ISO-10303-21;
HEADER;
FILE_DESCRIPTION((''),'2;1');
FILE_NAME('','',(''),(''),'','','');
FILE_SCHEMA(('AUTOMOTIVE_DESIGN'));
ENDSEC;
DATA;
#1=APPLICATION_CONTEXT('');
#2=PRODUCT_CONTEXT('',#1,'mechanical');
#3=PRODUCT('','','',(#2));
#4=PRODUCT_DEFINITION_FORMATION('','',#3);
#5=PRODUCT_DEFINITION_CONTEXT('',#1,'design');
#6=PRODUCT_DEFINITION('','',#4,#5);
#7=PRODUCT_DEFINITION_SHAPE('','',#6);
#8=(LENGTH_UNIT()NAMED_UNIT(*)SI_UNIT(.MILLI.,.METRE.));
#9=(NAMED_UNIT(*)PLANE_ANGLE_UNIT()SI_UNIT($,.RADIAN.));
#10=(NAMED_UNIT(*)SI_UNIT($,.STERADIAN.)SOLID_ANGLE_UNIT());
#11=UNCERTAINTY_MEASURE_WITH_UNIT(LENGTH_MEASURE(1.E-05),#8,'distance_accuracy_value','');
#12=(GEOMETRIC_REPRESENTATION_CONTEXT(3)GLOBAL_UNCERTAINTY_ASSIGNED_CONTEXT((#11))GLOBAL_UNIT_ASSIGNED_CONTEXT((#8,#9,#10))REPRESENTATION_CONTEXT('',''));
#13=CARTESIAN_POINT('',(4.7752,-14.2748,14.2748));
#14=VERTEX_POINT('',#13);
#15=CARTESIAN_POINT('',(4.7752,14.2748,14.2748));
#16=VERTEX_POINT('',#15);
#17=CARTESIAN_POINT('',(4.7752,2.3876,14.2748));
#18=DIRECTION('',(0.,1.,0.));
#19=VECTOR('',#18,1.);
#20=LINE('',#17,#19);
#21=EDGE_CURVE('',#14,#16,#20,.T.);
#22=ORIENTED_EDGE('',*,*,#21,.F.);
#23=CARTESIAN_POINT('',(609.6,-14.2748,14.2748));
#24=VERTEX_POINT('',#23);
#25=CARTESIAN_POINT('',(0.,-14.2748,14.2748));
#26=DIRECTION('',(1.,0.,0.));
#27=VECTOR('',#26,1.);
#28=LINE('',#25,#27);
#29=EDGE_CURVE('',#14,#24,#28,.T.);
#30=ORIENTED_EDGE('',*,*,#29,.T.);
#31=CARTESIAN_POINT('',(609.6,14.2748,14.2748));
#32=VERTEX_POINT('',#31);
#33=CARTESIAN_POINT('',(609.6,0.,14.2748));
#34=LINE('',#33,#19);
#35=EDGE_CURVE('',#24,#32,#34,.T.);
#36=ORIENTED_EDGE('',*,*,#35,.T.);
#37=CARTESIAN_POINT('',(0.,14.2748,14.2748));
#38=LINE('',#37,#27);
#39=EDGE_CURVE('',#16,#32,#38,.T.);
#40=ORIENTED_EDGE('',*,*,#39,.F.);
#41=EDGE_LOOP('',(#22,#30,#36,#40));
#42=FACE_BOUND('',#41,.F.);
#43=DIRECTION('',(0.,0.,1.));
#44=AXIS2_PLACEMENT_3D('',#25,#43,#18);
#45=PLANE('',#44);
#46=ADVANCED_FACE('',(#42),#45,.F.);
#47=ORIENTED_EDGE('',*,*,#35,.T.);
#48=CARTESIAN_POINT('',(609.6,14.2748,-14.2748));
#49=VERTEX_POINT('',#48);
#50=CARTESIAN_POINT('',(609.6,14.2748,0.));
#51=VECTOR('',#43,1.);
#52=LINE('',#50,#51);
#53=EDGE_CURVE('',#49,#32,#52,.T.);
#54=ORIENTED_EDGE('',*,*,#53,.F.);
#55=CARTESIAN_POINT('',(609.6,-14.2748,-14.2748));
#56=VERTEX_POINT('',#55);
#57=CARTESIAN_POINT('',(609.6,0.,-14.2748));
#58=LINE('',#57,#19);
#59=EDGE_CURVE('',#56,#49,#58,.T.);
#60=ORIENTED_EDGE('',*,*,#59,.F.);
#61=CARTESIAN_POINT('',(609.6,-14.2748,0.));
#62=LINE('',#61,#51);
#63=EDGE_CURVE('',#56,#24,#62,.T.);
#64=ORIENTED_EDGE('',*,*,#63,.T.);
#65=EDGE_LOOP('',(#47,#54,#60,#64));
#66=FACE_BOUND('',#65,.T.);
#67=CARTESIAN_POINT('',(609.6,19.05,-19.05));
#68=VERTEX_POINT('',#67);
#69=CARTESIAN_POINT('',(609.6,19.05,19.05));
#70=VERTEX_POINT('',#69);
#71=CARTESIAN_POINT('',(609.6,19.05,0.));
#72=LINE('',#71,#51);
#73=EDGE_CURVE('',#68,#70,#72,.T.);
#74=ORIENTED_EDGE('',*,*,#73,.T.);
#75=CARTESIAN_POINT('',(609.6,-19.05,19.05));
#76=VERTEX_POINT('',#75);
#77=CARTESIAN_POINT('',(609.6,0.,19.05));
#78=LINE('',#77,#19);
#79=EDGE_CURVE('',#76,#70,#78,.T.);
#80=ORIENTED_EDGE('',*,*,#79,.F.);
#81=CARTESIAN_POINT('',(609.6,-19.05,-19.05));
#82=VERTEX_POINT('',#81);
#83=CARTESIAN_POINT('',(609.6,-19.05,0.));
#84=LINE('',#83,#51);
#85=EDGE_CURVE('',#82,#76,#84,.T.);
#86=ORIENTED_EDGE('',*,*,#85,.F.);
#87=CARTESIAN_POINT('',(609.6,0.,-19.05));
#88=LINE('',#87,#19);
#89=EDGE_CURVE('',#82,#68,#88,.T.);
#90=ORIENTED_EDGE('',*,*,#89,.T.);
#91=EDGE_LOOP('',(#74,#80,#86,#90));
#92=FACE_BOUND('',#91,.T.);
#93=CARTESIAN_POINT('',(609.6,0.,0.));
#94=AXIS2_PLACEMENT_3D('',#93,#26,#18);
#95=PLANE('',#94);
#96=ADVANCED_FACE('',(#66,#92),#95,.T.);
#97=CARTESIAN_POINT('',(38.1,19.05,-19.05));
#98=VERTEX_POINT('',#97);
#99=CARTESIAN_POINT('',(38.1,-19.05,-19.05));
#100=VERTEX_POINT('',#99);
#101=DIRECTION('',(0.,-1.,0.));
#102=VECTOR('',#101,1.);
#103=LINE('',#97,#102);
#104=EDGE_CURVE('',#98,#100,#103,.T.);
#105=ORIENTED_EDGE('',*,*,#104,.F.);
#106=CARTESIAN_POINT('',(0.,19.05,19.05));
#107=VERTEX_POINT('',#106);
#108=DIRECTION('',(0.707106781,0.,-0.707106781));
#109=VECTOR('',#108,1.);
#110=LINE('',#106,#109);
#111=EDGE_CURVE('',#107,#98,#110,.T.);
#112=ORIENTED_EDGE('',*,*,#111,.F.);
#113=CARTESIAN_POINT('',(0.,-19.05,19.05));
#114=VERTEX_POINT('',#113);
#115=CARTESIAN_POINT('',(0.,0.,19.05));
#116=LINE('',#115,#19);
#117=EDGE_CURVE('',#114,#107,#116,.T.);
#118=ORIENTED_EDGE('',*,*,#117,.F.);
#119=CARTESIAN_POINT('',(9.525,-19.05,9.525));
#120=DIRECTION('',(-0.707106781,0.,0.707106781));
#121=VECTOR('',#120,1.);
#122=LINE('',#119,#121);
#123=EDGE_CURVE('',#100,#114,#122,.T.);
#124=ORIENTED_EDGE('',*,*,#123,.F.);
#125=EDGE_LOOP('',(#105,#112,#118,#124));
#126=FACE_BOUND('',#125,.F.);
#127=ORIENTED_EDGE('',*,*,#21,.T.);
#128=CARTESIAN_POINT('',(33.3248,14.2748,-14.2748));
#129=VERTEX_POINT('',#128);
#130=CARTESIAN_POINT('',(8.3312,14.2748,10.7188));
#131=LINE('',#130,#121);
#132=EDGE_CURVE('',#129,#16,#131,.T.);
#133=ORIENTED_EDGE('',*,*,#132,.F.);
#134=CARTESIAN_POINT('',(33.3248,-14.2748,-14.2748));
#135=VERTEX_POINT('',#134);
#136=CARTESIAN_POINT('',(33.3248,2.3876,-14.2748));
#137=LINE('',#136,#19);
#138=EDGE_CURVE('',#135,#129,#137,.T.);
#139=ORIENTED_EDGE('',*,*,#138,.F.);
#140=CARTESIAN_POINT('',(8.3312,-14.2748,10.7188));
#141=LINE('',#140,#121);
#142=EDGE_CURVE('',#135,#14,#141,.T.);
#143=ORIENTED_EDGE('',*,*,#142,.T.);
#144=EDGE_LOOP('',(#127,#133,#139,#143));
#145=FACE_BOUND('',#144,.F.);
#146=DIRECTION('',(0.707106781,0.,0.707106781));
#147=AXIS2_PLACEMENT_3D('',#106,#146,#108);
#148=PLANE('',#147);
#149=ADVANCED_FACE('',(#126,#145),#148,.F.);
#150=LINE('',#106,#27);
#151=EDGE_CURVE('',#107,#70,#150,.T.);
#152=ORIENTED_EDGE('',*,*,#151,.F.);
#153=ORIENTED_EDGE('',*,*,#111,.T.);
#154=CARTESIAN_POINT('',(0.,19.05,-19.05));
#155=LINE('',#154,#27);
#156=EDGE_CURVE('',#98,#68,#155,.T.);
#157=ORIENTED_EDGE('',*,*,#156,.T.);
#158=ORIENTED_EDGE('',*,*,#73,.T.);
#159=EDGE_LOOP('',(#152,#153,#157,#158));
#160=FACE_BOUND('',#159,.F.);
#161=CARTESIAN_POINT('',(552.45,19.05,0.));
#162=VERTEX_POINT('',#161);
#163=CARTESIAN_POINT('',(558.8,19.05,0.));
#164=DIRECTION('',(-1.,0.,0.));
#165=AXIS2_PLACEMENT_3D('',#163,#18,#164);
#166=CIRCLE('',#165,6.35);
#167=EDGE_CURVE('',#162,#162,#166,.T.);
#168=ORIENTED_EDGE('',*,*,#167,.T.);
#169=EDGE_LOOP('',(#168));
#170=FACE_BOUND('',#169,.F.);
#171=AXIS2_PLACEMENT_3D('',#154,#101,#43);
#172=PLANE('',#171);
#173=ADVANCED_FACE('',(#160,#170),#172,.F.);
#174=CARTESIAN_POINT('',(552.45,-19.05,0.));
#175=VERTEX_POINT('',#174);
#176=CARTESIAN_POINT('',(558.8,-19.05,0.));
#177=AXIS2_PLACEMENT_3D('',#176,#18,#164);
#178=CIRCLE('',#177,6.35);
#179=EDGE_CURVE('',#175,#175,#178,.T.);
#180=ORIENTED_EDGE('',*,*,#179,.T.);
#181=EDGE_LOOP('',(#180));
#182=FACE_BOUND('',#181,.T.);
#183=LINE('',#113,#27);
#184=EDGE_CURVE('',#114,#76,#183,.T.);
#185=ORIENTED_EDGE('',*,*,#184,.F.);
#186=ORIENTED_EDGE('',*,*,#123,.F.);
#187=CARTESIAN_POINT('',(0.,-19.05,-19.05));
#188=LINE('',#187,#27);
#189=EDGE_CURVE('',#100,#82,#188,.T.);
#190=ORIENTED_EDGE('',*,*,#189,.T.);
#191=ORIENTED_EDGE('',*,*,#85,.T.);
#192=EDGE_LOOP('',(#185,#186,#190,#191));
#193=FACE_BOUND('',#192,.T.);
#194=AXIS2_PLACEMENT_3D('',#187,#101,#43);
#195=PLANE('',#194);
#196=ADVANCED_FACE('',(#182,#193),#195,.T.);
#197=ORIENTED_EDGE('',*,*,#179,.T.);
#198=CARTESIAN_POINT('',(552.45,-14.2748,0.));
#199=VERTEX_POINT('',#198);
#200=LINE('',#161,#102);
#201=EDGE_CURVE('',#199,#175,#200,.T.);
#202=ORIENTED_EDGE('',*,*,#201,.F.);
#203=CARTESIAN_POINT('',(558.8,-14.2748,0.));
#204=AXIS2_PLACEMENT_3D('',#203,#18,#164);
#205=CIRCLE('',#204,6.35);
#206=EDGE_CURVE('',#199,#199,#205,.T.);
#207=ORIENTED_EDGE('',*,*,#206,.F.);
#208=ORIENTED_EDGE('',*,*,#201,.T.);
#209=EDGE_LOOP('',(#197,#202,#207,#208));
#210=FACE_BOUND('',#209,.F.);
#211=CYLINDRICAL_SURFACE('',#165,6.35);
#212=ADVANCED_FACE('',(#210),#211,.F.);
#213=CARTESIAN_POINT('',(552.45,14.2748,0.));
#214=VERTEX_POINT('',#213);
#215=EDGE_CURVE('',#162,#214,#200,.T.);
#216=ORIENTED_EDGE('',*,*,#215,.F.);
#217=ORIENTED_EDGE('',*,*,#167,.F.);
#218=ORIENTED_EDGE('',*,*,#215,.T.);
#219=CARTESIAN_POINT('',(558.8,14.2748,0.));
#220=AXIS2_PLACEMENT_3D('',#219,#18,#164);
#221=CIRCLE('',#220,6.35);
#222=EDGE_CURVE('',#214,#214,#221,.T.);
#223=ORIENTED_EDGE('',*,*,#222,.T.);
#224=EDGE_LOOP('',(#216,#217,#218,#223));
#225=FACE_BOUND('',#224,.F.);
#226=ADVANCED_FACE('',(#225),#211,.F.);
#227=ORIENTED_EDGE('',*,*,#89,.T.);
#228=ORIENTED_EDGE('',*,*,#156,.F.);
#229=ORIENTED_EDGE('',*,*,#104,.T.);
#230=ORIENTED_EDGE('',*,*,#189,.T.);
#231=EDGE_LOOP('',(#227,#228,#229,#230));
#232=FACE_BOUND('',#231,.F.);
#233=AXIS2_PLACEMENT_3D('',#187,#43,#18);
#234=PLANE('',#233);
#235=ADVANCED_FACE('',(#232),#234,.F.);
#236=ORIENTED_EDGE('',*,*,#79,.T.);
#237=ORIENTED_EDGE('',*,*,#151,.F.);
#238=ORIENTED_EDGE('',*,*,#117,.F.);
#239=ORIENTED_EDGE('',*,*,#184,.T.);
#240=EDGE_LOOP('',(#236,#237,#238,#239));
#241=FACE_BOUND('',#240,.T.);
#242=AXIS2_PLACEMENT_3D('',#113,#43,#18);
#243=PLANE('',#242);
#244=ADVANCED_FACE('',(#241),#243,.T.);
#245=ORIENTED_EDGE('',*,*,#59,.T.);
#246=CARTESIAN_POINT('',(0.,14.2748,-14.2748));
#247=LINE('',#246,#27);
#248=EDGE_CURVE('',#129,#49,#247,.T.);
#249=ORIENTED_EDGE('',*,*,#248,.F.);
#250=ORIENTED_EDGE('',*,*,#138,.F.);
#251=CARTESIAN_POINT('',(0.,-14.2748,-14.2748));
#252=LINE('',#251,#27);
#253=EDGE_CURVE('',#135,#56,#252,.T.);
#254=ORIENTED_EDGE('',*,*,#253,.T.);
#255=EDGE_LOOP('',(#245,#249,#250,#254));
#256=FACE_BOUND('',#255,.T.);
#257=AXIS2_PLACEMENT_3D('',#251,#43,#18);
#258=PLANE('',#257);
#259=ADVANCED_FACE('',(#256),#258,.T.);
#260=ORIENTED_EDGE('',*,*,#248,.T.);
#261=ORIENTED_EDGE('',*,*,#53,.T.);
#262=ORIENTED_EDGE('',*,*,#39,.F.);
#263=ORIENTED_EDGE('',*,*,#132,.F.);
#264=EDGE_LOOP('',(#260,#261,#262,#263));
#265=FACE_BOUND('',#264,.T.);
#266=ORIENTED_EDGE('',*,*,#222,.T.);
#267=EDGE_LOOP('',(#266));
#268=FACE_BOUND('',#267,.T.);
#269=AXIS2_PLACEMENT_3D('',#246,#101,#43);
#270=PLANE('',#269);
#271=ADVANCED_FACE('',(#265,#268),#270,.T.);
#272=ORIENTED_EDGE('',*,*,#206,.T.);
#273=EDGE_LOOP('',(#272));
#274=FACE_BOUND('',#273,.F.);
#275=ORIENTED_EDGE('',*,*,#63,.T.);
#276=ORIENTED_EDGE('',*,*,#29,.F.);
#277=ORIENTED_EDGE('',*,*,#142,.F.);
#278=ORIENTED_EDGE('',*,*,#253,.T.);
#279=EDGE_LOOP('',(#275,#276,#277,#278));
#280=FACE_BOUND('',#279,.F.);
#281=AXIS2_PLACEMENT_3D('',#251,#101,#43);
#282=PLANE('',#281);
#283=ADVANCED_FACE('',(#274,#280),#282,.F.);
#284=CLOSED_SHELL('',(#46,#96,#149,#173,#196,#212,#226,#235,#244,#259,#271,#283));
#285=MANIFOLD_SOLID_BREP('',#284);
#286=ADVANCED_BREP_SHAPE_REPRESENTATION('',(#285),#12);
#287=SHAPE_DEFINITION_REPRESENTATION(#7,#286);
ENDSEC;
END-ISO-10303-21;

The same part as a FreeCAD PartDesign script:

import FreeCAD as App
import Part
import Sketcher

V = App.Vector
Q = App.Units.Quantity


def add_polygon(sketch, points):
    """Adds a closed chain of lines whose ends are joined by coincident constraints."""
    first, n = sketch.GeometryCount, len(points)
    for a, b in zip(points, points[1:] + points[:1]):
        sketch.addGeometry(Part.LineSegment(App.Vector(*a, 0), App.Vector(*b, 0)), False)
    for i in range(n):
        sketch.addConstraint(Sketcher.Constraint("Coincident", first + i, 2, first + (i + 1) % n, 1))

doc = App.newDocument("Part")
body = doc.addObject("PartDesign::Body", "Body")

sketch1 = body.newObject("Sketcher::SketchObject", "Sketch")
sketch1.AttachmentSupport = (doc.getObject("YZ_Plane"), [""])
sketch1.MapMode = "FlatFace"
add_polygon(sketch1, [(-19.05, 19.05), (-19.05, -19.05), (19.05, -19.05), (19.05, 19.05)])
add_polygon(sketch1, [(14.2748, -14.2748), (-14.2748, -14.2748), (-14.2748, 14.2748), (14.2748, 14.2748)])
sketch1.addConstraint(Sketcher.Constraint("Vertical", 0))
sketch1.addConstraint(Sketcher.Constraint("Horizontal", 1))
sketch1.addConstraint(Sketcher.Constraint("Vertical", 2))
sketch1.addConstraint(Sketcher.Constraint("Horizontal", 3))
sketch1.addConstraint(Sketcher.Constraint("Horizontal", 4))
sketch1.addConstraint(Sketcher.Constraint("Vertical", 5))
sketch1.addConstraint(Sketcher.Constraint("Horizontal", 6))
sketch1.addConstraint(Sketcher.Constraint("Vertical", 7))
sketch1.addConstraint(Sketcher.Constraint("Symmetric", 0, 2, 2, 2, -1, 1))
sketch1.addConstraint(Sketcher.Constraint("Symmetric", 4, 2, 6, 2, -1, 1))
sketch1.addConstraint(Sketcher.Constraint("Equal", 3, 0))
sketch1.addConstraint(Sketcher.Constraint("Equal", 6, 5))
sketch1.addConstraint(Sketcher.Constraint("DistanceX", 1, 1, 1, 2, Q("1.5 in")))
sketch1.addConstraint(Sketcher.Constraint("DistanceX", 4, 2, 4, 1, Q("1.124 in")))
pad1 = body.newObject("PartDesign::Pad", "Pad")
pad1.Profile = sketch1
pad1.Length = Q("24 in")

sketch2 = body.newObject("Sketcher::SketchObject", "Sketch001")
sketch2.AttachmentSupport = (doc.getObject("XZ_Plane"), [""])
sketch2.MapMode = "FlatFace"
sketch2.AttachmentOffset = App.Placement(V(0, 0, -0.75 * 25.4), App.Rotation())
add_polygon(sketch2, [(0, -19.05), (0, 19.05), (38.1, -19.05)])
sketch2.addConstraint(Sketcher.Constraint("Vertical", 0))
sketch2.addConstraint(Sketcher.Constraint("Horizontal", 2))
sketch2.addConstraint(Sketcher.Constraint("Symmetric", 0, 2, 2, 2, -1, 1))
sketch2.addConstraint(Sketcher.Constraint("Equal", 2, 0))
sketch2.addConstraint(Sketcher.Constraint("DistanceX", 2, 2, 2, 1, Q("1.5 in")))
pocket1 = body.newObject("PartDesign::Pocket", "Pocket")
pocket1.Profile = sketch2
pocket1.Type = "ThroughAll"
pocket1.Reversed = True

sketch3 = body.newObject("Sketcher::SketchObject", "Sketch002")
sketch3.AttachmentSupport = (doc.getObject("XZ_Plane"), [""])
sketch3.MapMode = "FlatFace"
sketch3.AttachmentOffset = App.Placement(V(0, 0, -0.75 * 25.4), App.Rotation())
sketch3.addGeometry(Part.Circle(V(558.8, 0, 0), V(0, 0, 1), 6.35), False)
sketch3.addConstraint(Sketcher.Constraint("PointOnObject", 0, 3, -1))
sketch3.addConstraint(Sketcher.Constraint("Diameter", 0, Q("0.5 in")))
sketch3.addConstraint(Sketcher.Constraint("DistanceX", -1, 1, 0, 3, Q("22 in")))
pocket2 = body.newObject("PartDesign::Pocket", "Pocket001")
pocket2.Profile = sketch3
pocket2.Type = "ThroughAll"
pocket2.Reversed = True

doc.recompute()
